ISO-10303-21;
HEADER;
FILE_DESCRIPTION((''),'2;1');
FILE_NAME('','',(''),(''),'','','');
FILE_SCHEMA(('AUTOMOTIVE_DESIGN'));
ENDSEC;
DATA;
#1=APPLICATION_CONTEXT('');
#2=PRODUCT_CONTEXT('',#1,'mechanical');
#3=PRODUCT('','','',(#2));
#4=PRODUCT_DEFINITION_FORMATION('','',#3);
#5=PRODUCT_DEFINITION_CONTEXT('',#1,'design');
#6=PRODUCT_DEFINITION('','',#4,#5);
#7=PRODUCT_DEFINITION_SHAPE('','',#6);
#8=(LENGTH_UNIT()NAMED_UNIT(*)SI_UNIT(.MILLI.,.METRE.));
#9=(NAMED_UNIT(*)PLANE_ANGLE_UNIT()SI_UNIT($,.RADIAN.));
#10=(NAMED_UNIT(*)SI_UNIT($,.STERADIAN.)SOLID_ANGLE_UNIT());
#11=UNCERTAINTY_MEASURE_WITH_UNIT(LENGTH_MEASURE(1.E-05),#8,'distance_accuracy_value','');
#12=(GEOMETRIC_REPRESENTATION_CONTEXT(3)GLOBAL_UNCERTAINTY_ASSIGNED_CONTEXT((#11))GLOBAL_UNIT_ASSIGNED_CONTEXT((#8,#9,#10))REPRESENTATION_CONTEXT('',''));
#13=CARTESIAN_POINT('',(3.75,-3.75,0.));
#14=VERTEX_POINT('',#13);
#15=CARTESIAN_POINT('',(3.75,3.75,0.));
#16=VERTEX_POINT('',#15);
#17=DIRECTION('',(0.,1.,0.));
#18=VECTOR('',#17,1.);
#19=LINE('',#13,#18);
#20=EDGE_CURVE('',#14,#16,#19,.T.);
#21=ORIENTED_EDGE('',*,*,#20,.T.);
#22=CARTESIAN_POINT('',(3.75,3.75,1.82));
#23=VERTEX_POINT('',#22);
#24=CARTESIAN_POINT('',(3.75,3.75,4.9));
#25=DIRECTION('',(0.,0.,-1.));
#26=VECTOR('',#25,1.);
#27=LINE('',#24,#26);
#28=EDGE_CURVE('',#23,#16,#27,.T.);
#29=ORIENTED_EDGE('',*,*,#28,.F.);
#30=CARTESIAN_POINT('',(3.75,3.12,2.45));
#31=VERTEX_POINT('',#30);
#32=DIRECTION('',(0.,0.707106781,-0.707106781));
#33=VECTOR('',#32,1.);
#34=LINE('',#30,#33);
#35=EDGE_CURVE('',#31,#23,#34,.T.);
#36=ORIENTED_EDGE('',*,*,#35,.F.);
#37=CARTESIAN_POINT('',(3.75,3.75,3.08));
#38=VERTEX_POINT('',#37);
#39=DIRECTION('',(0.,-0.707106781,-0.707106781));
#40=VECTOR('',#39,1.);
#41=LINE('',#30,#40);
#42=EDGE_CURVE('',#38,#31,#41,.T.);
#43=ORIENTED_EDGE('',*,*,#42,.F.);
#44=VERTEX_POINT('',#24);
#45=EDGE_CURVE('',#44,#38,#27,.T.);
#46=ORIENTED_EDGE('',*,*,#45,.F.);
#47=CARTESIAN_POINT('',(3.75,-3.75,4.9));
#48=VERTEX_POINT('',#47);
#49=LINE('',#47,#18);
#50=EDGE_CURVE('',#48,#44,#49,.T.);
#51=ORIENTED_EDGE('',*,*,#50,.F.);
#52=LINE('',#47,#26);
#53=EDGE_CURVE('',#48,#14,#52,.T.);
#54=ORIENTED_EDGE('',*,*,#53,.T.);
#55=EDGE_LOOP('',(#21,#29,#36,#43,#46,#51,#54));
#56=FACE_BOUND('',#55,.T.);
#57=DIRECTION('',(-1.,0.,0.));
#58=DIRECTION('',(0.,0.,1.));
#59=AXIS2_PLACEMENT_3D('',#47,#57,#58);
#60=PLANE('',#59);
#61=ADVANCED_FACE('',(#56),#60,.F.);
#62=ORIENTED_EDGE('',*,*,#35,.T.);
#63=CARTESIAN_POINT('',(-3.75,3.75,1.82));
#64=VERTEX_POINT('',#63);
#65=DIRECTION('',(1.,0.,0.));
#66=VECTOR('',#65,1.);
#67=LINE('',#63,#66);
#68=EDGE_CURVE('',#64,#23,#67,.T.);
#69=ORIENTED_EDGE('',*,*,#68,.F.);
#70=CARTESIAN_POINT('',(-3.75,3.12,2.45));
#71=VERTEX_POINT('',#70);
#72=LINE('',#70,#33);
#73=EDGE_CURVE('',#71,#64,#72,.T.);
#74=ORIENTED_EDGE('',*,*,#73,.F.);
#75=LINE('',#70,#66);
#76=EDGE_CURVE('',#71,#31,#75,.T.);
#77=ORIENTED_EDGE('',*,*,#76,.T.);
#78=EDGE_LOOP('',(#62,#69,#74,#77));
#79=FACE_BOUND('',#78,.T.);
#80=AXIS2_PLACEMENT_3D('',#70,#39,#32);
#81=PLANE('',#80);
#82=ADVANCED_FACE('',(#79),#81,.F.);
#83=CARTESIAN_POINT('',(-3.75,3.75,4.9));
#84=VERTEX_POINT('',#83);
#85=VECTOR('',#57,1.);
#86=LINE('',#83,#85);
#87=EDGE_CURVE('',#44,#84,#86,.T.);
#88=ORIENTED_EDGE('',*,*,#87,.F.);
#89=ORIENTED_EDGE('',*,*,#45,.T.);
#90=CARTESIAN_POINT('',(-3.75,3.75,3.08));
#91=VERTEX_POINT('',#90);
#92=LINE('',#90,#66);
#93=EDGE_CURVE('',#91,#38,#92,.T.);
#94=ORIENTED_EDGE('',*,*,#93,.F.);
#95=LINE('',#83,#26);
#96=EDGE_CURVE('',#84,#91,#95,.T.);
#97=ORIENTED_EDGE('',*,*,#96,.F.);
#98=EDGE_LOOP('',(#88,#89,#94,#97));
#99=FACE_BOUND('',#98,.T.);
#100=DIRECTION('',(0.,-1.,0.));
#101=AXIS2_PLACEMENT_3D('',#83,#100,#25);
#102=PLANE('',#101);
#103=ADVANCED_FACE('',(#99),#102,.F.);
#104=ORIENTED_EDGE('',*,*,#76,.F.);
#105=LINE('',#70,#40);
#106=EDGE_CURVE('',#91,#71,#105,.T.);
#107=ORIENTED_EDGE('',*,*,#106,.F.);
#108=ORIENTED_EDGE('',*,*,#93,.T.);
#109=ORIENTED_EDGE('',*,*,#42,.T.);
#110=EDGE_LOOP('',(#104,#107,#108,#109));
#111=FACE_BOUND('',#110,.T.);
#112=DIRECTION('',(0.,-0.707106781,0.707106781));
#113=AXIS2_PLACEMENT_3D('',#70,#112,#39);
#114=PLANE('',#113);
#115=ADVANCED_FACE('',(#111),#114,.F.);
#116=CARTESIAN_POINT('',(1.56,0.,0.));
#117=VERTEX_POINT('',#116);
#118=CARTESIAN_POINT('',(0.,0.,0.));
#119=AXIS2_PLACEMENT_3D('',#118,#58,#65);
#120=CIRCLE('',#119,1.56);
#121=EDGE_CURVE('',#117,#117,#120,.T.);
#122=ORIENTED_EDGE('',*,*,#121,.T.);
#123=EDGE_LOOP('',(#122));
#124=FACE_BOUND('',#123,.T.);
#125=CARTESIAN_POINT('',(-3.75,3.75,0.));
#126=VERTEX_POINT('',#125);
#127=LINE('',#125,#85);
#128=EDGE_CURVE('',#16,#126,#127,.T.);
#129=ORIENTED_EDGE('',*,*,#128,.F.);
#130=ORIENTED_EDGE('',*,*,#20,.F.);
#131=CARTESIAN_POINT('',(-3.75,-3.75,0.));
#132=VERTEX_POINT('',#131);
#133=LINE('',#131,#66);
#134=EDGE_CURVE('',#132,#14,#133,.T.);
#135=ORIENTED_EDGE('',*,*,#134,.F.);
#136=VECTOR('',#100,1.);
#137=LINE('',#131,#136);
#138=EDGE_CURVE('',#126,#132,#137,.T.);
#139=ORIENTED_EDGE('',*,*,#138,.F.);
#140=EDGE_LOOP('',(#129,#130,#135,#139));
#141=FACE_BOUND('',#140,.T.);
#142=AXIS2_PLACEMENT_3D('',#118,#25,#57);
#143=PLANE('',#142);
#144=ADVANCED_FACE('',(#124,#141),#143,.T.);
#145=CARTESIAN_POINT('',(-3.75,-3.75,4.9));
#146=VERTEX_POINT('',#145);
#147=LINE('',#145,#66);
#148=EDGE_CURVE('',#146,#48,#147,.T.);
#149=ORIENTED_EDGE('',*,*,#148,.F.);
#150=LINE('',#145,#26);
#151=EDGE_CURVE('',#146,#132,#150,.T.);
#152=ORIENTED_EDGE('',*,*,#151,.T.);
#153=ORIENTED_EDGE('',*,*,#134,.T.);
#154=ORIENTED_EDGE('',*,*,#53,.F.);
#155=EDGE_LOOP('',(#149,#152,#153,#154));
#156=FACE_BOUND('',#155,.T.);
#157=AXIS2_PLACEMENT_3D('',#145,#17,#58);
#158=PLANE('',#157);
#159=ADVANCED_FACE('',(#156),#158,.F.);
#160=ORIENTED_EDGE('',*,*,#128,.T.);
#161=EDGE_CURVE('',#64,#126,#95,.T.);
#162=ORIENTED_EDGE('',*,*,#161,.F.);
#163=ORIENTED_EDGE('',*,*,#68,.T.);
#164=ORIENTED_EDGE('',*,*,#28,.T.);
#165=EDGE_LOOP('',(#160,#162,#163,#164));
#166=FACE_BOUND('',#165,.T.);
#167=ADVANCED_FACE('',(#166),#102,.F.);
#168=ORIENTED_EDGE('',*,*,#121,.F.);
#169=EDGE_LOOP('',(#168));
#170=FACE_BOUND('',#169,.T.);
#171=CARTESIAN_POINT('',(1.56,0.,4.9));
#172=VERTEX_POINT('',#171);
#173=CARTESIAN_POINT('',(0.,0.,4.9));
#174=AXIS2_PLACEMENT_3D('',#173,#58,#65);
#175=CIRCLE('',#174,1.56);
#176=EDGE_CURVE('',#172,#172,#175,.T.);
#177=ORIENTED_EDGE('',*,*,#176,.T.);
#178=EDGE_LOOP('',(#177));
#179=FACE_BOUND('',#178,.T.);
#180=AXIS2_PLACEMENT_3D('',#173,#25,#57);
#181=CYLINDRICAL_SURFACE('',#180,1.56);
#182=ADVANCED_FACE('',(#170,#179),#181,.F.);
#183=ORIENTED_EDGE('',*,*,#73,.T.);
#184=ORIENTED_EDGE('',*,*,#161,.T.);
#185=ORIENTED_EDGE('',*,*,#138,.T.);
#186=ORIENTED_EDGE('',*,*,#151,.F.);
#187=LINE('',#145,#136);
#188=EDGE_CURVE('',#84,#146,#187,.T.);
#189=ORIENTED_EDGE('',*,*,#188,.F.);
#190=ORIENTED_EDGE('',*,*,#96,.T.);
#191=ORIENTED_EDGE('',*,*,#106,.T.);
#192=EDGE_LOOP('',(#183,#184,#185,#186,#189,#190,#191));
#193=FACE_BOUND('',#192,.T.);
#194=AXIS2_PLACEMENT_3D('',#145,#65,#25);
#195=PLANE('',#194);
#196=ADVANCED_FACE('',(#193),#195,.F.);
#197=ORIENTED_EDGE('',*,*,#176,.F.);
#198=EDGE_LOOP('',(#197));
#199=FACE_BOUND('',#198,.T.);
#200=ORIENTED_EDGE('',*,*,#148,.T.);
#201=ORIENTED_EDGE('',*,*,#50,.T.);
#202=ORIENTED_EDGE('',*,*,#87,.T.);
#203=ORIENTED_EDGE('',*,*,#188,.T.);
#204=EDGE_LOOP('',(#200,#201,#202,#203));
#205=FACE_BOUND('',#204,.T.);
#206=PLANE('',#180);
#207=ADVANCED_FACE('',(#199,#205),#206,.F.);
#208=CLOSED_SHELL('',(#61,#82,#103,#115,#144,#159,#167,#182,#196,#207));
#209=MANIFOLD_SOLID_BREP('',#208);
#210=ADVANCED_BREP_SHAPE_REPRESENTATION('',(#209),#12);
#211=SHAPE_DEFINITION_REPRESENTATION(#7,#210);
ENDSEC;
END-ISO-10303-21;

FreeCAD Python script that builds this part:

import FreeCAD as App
import Part
import Sketcher


def add_polygon(sketch, points):
    """Adds a closed chain of lines whose ends are joined by coincident constraints."""
    first, n = sketch.GeometryCount, len(points)
    for a, b in zip(points, points[1:] + points[:1]):
        sketch.addGeometry(Part.LineSegment(App.Vector(*a, 0), App.Vector(*b, 0)), False)
    for i in range(n):
        sketch.addConstraint(Sketcher.Constraint("Coincident", first + i, 2, first + (i + 1) % n, 1))

doc = App.newDocument("Part")
body = doc.addObject("PartDesign::Body", "Body")

# Sketch on XY plane
sketch1 = body.newObject("Sketcher::SketchObject", "Sketch")
sketch1.AttachmentSupport = (doc.getObject("XY_Plane"), [""])
sketch1.MapMode = "FlatFace"
add_polygon(sketch1, [(-3.8, 3.8), (-3.8, -3.8), (3.8, -3.8), (3.8, 3.8)])  # lines 0-3
sketch1.addGeometry(Part.Circle(App.Vector(0, 0, 0), App.Vector(0, 0, 1), 1.6), False)  # 4
sketch1.addConstraint([
    Sketcher.Constraint("Vertical", 0),
    Sketcher.Constraint("Horizontal", 1),
    Sketcher.Constraint("Vertical", 2),
    Sketcher.Constraint("Horizontal", 3),
    Sketcher.Constraint("Coincident", 4, 3, -1, 1),
    Sketcher.Constraint("Symmetric", 0, 2, 2, 2, -1, 1),
    Sketcher.Constraint("Equal", 3, 0),
    Sketcher.Constraint("Diameter", 4, 3.12),
    Sketcher.Constraint("DistanceX", 1, 1, 1, 2, 7.5),
])
pad1 = body.newObject("PartDesign::Pad", "Pad")
pad1.Profile = sketch1
pad1.Length = 4.9

# Sketch on YZ plane
sketch2 = body.newObject("Sketcher::SketchObject", "Sketch001")
sketch2.AttachmentSupport = (doc.getObject("YZ_Plane"), [""])
sketch2.MapMode = "FlatFace"
add_polygon(sketch2, [(3.8, 3.1), (3.1, 2.5), (3.8, 1.8)])  # lines 0-2
sketch2.addConstraint([
    Sketcher.Constraint("Vertical", 2),
    Sketcher.Constraint("Perpendicular", 0, 1),
    Sketcher.Constraint("Equal", 0, 1),
    Sketcher.Constraint("DistanceY", 2, 1, 2, 2, 1.26),
    Sketcher.Constraint("DistanceX", -1, 1, 0, 2, 3.12),
    Sketcher.Constraint("DistanceY", -1, 1, 0, 2, 2.45),
])
pocket1 = body.newObject("PartDesign::Pocket", "Pocket")
pocket1.Profile = sketch2
pocket1.Type = "ThroughAll"
pocket1.Midplane = True

doc.recompute()
